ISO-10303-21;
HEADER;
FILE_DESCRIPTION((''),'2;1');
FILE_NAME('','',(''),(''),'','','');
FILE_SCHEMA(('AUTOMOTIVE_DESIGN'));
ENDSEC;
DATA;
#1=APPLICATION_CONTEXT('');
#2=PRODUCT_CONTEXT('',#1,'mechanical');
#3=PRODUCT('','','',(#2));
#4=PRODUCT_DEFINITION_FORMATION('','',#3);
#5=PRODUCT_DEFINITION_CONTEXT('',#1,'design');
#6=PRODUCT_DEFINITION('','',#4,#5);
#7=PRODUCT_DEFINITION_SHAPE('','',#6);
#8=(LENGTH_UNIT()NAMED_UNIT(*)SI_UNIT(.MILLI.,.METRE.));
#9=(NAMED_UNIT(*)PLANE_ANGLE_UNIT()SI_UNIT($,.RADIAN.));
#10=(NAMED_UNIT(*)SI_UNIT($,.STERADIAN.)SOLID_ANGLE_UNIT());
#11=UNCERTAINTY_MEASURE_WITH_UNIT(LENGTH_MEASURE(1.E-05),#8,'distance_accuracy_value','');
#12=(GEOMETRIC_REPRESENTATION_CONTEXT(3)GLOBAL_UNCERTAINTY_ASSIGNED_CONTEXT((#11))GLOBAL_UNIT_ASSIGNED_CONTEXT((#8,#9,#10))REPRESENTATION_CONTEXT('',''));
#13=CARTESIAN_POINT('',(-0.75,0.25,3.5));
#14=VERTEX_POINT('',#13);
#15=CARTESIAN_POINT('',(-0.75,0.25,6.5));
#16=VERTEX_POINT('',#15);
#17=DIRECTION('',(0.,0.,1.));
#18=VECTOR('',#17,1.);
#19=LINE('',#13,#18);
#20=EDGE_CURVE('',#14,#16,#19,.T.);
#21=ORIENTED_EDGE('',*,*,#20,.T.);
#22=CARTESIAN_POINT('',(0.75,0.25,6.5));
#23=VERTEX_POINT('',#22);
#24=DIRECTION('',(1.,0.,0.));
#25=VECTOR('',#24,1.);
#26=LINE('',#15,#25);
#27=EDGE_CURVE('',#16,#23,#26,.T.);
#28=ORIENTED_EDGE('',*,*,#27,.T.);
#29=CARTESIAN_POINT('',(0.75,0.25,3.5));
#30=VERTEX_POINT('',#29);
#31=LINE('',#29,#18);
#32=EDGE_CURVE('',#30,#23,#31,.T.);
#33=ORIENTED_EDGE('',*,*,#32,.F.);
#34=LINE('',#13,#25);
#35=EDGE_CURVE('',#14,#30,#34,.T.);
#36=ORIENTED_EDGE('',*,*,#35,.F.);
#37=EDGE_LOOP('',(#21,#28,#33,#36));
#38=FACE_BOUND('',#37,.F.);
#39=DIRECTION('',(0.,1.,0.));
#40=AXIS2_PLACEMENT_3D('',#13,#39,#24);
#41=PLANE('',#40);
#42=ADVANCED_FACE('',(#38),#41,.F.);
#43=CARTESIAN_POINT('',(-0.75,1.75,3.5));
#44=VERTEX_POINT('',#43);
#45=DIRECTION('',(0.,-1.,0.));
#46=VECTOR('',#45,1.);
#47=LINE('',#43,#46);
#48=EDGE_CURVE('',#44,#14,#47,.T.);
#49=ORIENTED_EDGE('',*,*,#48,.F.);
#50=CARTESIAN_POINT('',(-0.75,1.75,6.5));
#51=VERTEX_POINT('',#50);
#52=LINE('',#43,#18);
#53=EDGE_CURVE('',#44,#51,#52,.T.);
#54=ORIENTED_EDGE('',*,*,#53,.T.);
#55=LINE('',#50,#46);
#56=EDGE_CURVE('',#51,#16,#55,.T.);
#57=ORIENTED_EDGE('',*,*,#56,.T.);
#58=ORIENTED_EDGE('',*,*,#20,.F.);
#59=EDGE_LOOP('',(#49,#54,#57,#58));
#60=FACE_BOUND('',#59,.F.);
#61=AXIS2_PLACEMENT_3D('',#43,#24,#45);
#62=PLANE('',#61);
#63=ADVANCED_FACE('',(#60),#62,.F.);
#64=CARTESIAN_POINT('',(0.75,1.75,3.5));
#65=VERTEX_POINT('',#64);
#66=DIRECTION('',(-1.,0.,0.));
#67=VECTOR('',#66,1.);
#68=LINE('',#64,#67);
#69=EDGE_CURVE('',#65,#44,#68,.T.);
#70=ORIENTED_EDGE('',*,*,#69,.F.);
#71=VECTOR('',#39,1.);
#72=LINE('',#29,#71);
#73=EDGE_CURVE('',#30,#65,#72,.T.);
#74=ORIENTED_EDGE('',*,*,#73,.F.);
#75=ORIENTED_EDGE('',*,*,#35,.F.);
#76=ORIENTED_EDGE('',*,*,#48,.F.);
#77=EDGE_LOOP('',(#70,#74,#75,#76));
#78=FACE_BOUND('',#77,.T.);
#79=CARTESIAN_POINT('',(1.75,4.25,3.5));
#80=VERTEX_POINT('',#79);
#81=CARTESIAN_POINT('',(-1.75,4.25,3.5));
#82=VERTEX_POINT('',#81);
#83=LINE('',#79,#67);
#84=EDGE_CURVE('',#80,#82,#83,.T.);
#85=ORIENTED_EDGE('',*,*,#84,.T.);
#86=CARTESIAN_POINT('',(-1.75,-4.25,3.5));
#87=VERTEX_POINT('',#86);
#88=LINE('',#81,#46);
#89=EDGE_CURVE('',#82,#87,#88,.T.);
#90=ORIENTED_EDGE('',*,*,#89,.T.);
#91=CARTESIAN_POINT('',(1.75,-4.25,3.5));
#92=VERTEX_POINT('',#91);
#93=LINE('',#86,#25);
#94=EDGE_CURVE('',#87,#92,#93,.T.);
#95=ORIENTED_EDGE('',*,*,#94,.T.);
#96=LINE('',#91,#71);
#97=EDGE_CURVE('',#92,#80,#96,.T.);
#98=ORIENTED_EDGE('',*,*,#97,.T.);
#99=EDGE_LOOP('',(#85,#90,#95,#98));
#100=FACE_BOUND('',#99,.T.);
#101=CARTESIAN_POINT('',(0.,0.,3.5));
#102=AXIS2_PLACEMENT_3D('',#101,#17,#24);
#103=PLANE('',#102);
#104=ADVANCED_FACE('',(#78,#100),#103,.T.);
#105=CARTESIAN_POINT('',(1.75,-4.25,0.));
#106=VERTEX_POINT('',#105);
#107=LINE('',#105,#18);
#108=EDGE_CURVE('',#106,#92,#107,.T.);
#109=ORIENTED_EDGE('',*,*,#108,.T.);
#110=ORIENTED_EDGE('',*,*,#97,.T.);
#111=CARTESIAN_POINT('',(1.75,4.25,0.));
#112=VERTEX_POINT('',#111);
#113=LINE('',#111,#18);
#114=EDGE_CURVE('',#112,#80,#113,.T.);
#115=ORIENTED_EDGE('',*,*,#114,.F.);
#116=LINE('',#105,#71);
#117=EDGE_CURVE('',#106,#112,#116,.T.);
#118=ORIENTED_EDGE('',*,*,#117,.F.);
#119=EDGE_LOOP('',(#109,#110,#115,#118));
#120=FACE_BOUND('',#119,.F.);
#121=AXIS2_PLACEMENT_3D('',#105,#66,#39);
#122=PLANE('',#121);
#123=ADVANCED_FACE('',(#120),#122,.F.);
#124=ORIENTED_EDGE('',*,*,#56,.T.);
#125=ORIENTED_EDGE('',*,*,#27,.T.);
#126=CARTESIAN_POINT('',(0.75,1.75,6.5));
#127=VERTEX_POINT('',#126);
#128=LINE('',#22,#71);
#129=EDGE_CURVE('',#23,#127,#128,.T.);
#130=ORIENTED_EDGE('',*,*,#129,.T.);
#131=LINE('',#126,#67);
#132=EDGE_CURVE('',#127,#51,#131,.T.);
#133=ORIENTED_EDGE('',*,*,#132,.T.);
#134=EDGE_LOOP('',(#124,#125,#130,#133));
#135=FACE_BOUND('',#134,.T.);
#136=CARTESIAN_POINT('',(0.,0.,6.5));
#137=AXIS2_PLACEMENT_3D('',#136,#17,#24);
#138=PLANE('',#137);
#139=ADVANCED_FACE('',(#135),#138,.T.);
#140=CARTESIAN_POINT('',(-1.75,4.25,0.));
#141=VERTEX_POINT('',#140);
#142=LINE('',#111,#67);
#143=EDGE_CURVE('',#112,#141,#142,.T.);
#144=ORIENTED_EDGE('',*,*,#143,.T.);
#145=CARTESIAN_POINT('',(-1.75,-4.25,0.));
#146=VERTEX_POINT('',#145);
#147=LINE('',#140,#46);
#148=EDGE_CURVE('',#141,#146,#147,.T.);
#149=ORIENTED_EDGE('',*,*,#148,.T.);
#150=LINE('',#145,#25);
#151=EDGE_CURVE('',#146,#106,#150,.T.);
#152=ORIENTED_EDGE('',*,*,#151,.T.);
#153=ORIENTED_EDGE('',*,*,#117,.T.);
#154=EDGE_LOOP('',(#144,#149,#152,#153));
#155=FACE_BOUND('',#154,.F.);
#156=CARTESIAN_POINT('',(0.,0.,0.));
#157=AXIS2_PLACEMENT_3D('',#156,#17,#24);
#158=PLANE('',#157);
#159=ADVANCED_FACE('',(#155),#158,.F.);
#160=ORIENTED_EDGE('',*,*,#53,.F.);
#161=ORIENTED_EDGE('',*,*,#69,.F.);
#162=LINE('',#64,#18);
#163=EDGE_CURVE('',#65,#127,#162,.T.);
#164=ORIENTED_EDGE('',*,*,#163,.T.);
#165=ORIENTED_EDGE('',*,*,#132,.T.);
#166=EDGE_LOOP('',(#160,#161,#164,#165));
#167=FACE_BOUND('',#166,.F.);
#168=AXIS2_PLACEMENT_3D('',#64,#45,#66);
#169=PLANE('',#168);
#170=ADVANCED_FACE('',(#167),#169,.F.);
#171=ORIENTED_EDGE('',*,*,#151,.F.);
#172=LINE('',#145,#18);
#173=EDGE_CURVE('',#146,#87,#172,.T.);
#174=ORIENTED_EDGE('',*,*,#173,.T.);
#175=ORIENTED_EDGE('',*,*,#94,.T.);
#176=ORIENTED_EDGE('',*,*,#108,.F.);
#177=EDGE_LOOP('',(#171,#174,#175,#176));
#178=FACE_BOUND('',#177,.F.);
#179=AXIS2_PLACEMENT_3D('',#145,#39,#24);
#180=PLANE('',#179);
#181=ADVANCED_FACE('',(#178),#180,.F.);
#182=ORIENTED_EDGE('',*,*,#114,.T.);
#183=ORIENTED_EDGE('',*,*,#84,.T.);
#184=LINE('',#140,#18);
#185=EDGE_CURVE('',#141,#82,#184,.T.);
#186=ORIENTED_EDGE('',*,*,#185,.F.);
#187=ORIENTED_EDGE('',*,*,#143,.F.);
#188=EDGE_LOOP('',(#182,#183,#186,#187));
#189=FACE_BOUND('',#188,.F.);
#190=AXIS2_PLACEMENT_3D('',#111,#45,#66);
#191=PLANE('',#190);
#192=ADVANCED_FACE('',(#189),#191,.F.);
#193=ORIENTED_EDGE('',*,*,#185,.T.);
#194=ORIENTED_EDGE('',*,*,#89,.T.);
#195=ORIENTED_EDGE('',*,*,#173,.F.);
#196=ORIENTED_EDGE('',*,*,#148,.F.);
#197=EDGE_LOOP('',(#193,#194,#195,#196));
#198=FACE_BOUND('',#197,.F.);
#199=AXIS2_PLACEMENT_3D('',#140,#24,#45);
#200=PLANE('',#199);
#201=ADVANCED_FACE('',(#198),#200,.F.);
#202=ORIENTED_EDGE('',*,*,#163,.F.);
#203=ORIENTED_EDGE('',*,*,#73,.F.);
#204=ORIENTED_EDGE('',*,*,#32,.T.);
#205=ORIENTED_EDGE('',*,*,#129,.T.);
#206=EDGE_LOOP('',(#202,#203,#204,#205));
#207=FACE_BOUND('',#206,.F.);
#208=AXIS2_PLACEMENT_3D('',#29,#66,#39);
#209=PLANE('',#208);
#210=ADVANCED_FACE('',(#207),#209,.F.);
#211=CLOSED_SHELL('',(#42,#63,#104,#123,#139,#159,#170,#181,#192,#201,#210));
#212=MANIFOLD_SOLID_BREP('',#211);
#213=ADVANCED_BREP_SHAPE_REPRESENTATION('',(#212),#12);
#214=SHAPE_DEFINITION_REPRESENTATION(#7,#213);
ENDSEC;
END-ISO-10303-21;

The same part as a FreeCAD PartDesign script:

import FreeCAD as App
import Part
import Sketcher

V = App.Vector
Q = App.Units.Quantity


def add_polygon(sketch, points):
    """Adds a closed chain of lines whose ends are joined by coincident constraints."""
    first, n = sketch.GeometryCount, len(points)
    for a, b in zip(points, points[1:] + points[:1]):
        sketch.addGeometry(Part.LineSegment(App.Vector(*a, 0), App.Vector(*b, 0)), False)
    for i in range(n):
        sketch.addConstraint(Sketcher.Constraint("Coincident", first + i, 2, first + (i + 1) % n, 1))

doc = App.newDocument("Part")
body = doc.addObject("PartDesign::Body", "Body")

# Sketch on XY plane
sketch1 = body.newObject("Sketcher::SketchObject", "Sketch")
sketch1.AttachmentSupport = (doc.getObject("XY_Plane"), [""])
sketch1.MapMode = "FlatFace"
add_polygon(sketch1, [(-1.8, 4.2), (-1.8, -4.2), (1.8, -4.2), (1.8, 4.2)])  # lines 0-3
sketch1.addConstraint(Sketcher.Constraint("Vertical", 0))
sketch1.addConstraint(Sketcher.Constraint("Horizontal", 1))
sketch1.addConstraint(Sketcher.Constraint("Vertical", 2))
sketch1.addConstraint(Sketcher.Constraint("Horizontal", 3))
sketch1.addConstraint(Sketcher.Constraint("Symmetric", 0, 2, 2, 2, -1, 1))
sketch1.addConstraint(Sketcher.Constraint("DistanceX", 1, 1, 1, 2, Q("3.5 mm")))
sketch1.addConstraint(Sketcher.Constraint("DistanceY", 0, 2, 0, 1, Q("8.5 mm")))
pad1 = body.newObject("PartDesign::Pad", "Pad")
pad1.Profile = sketch1
pad1.Length = 3.5

# Sketch on XY plane
sketch2 = body.newObject("Sketcher::SketchObject", "Sketch001")
sketch2.AttachmentSupport = (doc.getObject("XY_Plane"), [""])
sketch2.MapMode = "FlatFace"
sketch2.AttachmentOffset = App.Placement(V(0, 0, 3.5), App.Rotation())
add_polygon(sketch2, [(-0.8, 1.8), (-0.8, 0.2), (0.8, 0.2), (0.8, 1.8)])  # lines 0-3
sketch2.addConstraint(Sketcher.Constraint("Vertical", 0))
sketch2.addConstraint(Sketcher.Constraint("Horizontal", 1))
sketch2.addConstraint(Sketcher.Constraint("Vertical", 2))
sketch2.addConstraint(Sketcher.Constraint("Horizontal", 3))
sketch2.addConstraint(Sketcher.Constraint("Equal", 3, 0))
sketch2.addConstraint(Sketcher.Constraint("DistanceX", 1, 1, 1, 2, Q("1.5 mm")))
sketch2.addConstraint(Sketcher.Constraint("DistanceX", 0, 2, -1, 1, Q("0.75 mm")))
sketch2.addConstraint(Sketcher.Constraint("DistanceY", -1, 1, 0, 2, Q("0.25 mm")))
pad2 = body.newObject("PartDesign::Pad", "Pad001")
pad2.Profile = sketch2
pad2.Length = 3

doc.recompute()
